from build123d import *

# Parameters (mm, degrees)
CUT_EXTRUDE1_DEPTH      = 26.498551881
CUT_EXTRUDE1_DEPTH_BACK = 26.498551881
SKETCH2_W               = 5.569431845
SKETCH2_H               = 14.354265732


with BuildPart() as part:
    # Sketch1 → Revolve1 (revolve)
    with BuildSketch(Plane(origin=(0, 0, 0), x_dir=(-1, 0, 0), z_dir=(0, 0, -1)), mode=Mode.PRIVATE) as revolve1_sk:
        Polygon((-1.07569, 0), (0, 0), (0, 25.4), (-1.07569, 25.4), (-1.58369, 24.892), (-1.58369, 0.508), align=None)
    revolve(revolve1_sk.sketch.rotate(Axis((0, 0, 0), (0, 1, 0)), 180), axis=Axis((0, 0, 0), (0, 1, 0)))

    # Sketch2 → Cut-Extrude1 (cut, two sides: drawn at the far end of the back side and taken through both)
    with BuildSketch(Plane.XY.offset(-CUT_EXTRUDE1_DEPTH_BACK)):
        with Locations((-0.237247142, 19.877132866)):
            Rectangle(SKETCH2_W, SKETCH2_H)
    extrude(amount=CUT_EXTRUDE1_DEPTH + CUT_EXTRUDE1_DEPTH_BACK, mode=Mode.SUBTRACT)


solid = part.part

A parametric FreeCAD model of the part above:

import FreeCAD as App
import Part
import Sketcher
Q = App.Units.Quantity

doc = App.newDocument("Part")
body = doc.addObject("PartDesign::Body", "Body")

sketch1 = doc.addObject("Sketcher::SketchObject", "Sketch")
body.addObject(sketch1)
sketch1.AttachmentSupport = (doc.XY_Plane, [""])
sketch1.MapMode = "FlatFace"
sketch1.addGeometry([
    Part.LineSegment(App.Vector(1.1, 0, 0), App.Vector(0, 0, 0)),
    Part.LineSegment(App.Vector(0, 0, 0), App.Vector(0, 25.4, 0)),
    Part.LineSegment(App.Vector(0, 25.4, 0), App.Vector(1.1, 25.4, 0)),
    Part.LineSegment(App.Vector(1.1, 25.4, 0), App.Vector(1.6, 24.9, 0)),
    Part.LineSegment(App.Vector(1.6, 24.9, 0), App.Vector(1.6, 0.5, 0)),
    Part.LineSegment(App.Vector(1.6, 0.5, 0), App.Vector(1.1, 0, 0)),
], False)
sketch1.addConstraint([
    Sketcher.Constraint("Coincident", 0, 2, 1, 1),
    Sketcher.Constraint("Coincident", 1, 2, 2, 1),
    Sketcher.Constraint("Coincident", 2, 2, 3, 1),
    Sketcher.Constraint("Coincident", 3, 2, 4, 1),
    Sketcher.Constraint("Coincident", 4, 2, 5, 1),
    Sketcher.Constraint("Coincident", 5, 2, 0, 1),
    Sketcher.Constraint("Horizontal", 0),
    Sketcher.Constraint("Vertical", 1),
    Sketcher.Constraint("Horizontal", 2),
    Sketcher.Constraint("Vertical", 4),
    Sketcher.Constraint("Coincident", 0, 2, -1, 1),
    Sketcher.Constraint("Perpendicular", 3, 5),
    Sketcher.Constraint("Vertical", 2, 2, 5, 2),
    Sketcher.Constraint("Equal", 3, 5),
    Sketcher.Constraint("DistanceY", 1, 1, 1, 2, Q("1 in")),
    Sketcher.Constraint("DistanceY", 4, 2, 4, 1, Q("0.96 in")),
    Sketcher.Constraint("DistanceX", 0, 2, 0, 1, Q("1.07569 mm")),
])
revolution = doc.addObject("PartDesign::Revolution", "Revolution")
body.addObject(revolution)
revolution.Profile = sketch1
revolution.ReferenceAxis = (sketch1, ["V_Axis"])
revolution.Angle = 360

sketch2 = doc.addObject("Sketcher::SketchObject", "Sketch001")
body.addObject(sketch2)
sketch2.AttachmentSupport = (doc.XY_Plane, [""])
sketch2.MapMode = "FlatFace"
sketch2.addGeometry([
    Part.LineSegment(App.Vector(-3, 27, 0), App.Vector(-3, 13, 0)),
    Part.LineSegment(App.Vector(-3, 13, 0), App.Vector(3, 13, 0)),
    Part.LineSegment(App.Vector(3, 13, 0), App.Vector(3, 27, 0)),
    Part.LineSegment(App.Vector(3, 27, 0), App.Vector(-3, 27, 0)),
], False)
sketch2.addConstraint([
    Sketcher.Constraint("Coincident", 0, 2, 1, 1),
    Sketcher.Constraint("Coincident", 1, 2, 2, 1),
    Sketcher.Constraint("Coincident", 2, 2, 3, 1),
    Sketcher.Constraint("Coincident", 3, 2, 0, 1),
    Sketcher.Constraint("Vertical", 0),
    Sketcher.Constraint("Horizontal", 1),
    Sketcher.Constraint("Vertical", 2),
    Sketcher.Constraint("Horizontal", 3),
    Sketcher.Constraint("DistanceY", -1, 1, 0, 2, Q("0.5 in")),
    Sketcher.Constraint("DistanceX", 1, 1, 1, 2, Q("5.569432 mm")),
    Sketcher.Constraint("DistanceY", 0, 2, 0, 1, Q("14.354266 mm")),
    Sketcher.Constraint("DistanceX", -1, 1, 1, 2, Q("2.547469 mm")),
])
pocket1 = doc.addObject("PartDesign::Pocket", "Pocket")
body.addObject(pocket1)
pocket1.Profile = sketch2
pocket1.Type = "ThroughAll"
pocket1.Midplane = True

doc.recompute()
